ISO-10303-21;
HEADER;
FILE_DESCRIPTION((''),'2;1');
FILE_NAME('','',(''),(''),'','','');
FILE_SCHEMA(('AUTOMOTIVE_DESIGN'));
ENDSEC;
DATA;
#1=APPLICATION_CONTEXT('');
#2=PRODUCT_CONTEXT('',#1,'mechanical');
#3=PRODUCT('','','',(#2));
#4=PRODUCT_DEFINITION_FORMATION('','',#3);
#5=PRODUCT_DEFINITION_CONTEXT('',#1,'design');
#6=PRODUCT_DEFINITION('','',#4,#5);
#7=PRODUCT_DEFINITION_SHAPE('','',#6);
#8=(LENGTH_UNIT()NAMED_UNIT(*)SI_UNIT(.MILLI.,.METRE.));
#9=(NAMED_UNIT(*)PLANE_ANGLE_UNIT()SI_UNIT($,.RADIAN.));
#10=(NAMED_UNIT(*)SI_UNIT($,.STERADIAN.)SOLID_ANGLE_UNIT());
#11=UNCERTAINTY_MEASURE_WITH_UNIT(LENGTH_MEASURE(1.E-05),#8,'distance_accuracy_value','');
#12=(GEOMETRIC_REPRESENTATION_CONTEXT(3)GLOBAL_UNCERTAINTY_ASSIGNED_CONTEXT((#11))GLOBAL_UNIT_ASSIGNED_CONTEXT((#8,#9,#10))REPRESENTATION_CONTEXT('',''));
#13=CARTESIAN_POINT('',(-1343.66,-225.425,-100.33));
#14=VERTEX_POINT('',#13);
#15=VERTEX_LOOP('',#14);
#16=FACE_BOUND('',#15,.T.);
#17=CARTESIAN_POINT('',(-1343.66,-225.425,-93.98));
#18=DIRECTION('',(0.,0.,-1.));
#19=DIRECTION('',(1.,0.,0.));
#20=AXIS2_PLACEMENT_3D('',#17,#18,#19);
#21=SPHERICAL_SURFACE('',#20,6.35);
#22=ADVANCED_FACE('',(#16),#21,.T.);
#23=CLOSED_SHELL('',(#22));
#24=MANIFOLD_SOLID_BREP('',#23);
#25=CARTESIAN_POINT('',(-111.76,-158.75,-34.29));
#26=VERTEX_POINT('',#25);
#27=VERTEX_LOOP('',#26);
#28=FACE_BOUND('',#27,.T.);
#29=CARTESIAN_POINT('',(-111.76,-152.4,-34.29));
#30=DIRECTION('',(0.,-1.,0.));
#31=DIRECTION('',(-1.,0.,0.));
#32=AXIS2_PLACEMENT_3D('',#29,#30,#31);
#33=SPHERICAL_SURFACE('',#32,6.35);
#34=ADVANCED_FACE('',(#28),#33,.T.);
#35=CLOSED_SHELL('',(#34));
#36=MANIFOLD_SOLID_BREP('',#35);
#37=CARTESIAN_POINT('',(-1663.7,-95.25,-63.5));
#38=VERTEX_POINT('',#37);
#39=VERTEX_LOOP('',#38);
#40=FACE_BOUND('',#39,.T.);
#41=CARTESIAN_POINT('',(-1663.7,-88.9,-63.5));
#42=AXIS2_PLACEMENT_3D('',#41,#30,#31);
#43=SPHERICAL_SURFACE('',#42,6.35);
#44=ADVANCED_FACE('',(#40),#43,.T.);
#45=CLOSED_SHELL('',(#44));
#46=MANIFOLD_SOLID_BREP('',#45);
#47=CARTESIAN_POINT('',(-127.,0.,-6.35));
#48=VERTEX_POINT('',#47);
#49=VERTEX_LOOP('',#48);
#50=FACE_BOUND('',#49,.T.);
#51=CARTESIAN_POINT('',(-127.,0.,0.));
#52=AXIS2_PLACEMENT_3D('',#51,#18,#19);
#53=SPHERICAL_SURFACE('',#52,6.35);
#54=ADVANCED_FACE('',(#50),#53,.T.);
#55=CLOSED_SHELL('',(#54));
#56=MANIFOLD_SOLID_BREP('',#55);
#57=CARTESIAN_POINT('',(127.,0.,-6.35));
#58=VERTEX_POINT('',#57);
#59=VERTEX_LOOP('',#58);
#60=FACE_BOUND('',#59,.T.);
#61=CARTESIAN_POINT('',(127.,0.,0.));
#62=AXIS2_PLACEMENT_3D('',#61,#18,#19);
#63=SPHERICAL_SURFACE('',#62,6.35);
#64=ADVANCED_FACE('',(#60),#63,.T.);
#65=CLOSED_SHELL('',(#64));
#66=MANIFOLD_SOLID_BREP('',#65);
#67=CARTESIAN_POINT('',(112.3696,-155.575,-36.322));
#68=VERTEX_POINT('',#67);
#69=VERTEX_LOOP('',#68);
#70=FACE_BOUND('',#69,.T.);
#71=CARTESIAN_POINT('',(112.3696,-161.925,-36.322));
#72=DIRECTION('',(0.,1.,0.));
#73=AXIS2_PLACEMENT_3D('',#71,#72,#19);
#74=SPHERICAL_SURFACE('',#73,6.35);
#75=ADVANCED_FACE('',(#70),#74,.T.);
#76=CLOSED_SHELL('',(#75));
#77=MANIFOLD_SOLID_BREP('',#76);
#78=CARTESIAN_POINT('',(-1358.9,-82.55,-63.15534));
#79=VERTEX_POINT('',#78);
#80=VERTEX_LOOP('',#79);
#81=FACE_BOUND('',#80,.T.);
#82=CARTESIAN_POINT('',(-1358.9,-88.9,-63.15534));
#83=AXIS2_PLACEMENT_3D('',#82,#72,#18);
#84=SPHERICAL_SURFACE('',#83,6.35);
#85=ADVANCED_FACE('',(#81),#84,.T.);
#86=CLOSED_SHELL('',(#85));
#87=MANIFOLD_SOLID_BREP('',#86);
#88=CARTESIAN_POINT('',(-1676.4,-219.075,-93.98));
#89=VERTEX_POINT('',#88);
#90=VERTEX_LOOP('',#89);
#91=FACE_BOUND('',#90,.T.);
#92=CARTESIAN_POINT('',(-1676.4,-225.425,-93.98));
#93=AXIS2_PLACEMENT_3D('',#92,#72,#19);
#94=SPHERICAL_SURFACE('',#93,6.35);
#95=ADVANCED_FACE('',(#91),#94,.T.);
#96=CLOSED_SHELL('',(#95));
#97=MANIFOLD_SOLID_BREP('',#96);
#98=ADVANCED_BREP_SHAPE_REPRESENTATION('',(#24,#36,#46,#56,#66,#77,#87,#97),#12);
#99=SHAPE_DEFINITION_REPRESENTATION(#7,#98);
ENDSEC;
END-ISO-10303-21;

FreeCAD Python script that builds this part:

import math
import FreeCAD as App
import Part
import Sketcher
from FreeCAD import Vector
Q = App.Units.Quantity

doc = App.newDocument("Part")
body = doc.addObject("PartDesign::Body", "Body")

sketch1 = body.newObject("Sketcher::SketchObject", "Sketch")
sketch1.AttachmentSupport = (doc.getObject("XZ_Plane"), [""])
sketch1.MapMode = "FlatFace"
sketch1.addGeometry([
    Part.LineSegment(Vector(127, -6.35, 0), Vector(127, 6.35, 0)),
    Part.ArcOfCircle(Part.Circle(Vector(127, 0, 0), Vector(0, 0, 1), 6.35), math.radians(-90), math.radians(90)),
], False)
sketch1.addGeometry(Part.LineSegment(Vector(127, -6.35, 0), Vector(127, 6.35, 0)), True)
sketch1.addConstraint([
    Sketcher.Constraint("Coincident", 0, 1, 1, 1),
    Sketcher.Constraint("Coincident", 1, 2, 0, 2),
    Sketcher.Constraint("Vertical", 0),
    Sketcher.Constraint("Vertical", 2),
    Sketcher.Constraint("Coincident", 2, 1, 0, 1),
    Sketcher.Constraint("PointOnObject", 1, 3, -1),
    Sketcher.Constraint("Vertical", 1, 3, 0, 1),
    Sketcher.Constraint("Equal", 0, 2),
    Sketcher.Constraint("Radius", 1, Q("0.25 in")),
    Sketcher.Constraint("DistanceX", -1, 1, 1, 3, Q("5 in")),
])
revolution = body.newObject("PartDesign::Revolution", "Revolution")
revolution.Profile = sketch1
revolution.ReferenceAxis = (sketch1, ["Axis0"])
revolution.Angle = 360
body2 = doc.addObject("PartDesign::Body", "Body001")

sketch2 = body2.newObject("Sketcher::SketchObject", "Sketch001")
sketch2.AttachmentSupport = (doc.getObject("XZ_Plane001"), [""])
sketch2.MapMode = "FlatFace"
sketch2.addGeometry([
    Part.LineSegment(Vector(-127, 6.35, 0), Vector(-127, -6.35, 0)),
    Part.ArcOfCircle(Part.Circle(Vector(-127, 0, 0), Vector(0, 0, 1), 6.35), math.radians(90), math.radians(270)),
], False)
sketch2.addGeometry(Part.LineSegment(Vector(-127, -6.35, 0), Vector(-127, 6.35, 0)), True)
sketch2.addConstraint([
    Sketcher.Constraint("Coincident", 0, 1, 1, 1),
    Sketcher.Constraint("Coincident", 1, 2, 0, 2),
    Sketcher.Constraint("Vertical", 0),
    Sketcher.Constraint("Vertical", 2),
    Sketcher.Constraint("Coincident", 2, 1, 1, 2),
    Sketcher.Constraint("PointOnObject", 1, 3, -1),
    Sketcher.Constraint("Vertical", 1, 3, 0, 1),
    Sketcher.Constraint("Equal", 0, 2),
    Sketcher.Constraint("Radius", 1, Q("0.25 in")),
    Sketcher.Constraint("DistanceX", 1, 3, -1, 1, Q("5 in")),
])
revolution2 = body2.newObject("PartDesign::Revolution", "Revolution001")
revolution2.Profile = sketch2
revolution2.ReferenceAxis = (sketch2, ["Axis0"])
revolution2.Angle = 360
body3 = doc.addObject("PartDesign::Body", "Body002")

sketch3 = body3.newObject("Sketcher::SketchObject", "Sketch002")
sketch3.AttachmentSupport = (doc.getObject("XY_Plane002"), [""])
sketch3.MapMode = "FlatFace"
sketch3.AttachmentOffset = App.Placement(Vector(0, 0, -1.35 * 25.4), App.Rotation())
sketch3.addGeometry([
    Part.LineSegment(Vector(-111.76, -146.05, 0), Vector(-111.76, -158.75, 0)),
    Part.ArcOfCircle(Part.Circle(Vector(-111.76, -152.4, 0), Vector(0, 0, 1), 6.35), math.radians(-90), math.radians(90)),
], False)
sketch3.addGeometry(Part.LineSegment(Vector(-111.76, -158.75, 0), Vector(-111.76, -146.05, 0)), True)
sketch3.addConstraint([
    Sketcher.Constraint("Coincident", 0, 1, 1, 2),
    Sketcher.Constraint("Coincident", 1, 1, 0, 2),
    Sketcher.Constraint("Vertical", 0),
    Sketcher.Constraint("Vertical", 2),
    Sketcher.Constraint("Coincident", 2, 1, 1, 1),
    Sketcher.Constraint("Vertical", 1, 3, 0, 1),
    Sketcher.Constraint("Equal", 0, 2),
    Sketcher.Constraint("Radius", 1, Q("0.25 in")),
    Sketcher.Constraint("DistanceY", 1, 3, -1, 1, Q("6 in")),
    Sketcher.Constraint("DistanceX", 1, 3, -1, 1, Q("4.4 in")),
])
revolution3 = body3.newObject("PartDesign::Revolution", "Revolution002")
revolution3.Profile = sketch3
revolution3.ReferenceAxis = (sketch3, ["Axis0"])
revolution3.Angle = 360
body4 = doc.addObject("PartDesign::Body", "Body003")

sketch4 = body4.newObject("Sketcher::SketchObject", "Sketch003")
sketch4.AttachmentSupport = (doc.getObject("XY_Plane003"), [""])
sketch4.MapMode = "FlatFace"
sketch4.AttachmentOffset = App.Placement(Vector(0, 0, -1.43 * 25.4), App.Rotation())
sketch4.addGeometry([
    Part.LineSegment(Vector(112.3696, -168.275, 0), Vector(112.3696, -155.575, 0)),
    Part.ArcOfCircle(Part.Circle(Vector(112.3696, -161.925, 0), Vector(0, 0, 1), 6.35), math.radians(90), math.radians(270)),
], False)
sketch4.addGeometry(Part.LineSegment(Vector(112.3696, -155.575, 0), Vector(112.3696, -168.275, 0)), True)
sketch4.addConstraint([
    Sketcher.Constraint("Coincident", 0, 1, 1, 2),
    Sketcher.Constraint("Coincident", 1, 1, 0, 2),
    Sketcher.Constraint("Vertical", 0),
    Sketcher.Constraint("Vertical", 2),
    Sketcher.Constraint("Coincident", 2, 1, 1, 1),
    Sketcher.Constraint("Vertical", 1, 3, 0, 1),
    Sketcher.Constraint("Equal", 0, 2),
    Sketcher.Constraint("Radius", 1, Q("0.25 in")),
    Sketcher.Constraint("DistanceX", -1, 1, 1, 3, Q("4.424 in")),
    Sketcher.Constraint("DistanceY", 1, 3, -1, 1, Q("6.375 in")),
])
revolution4 = body4.newObject("PartDesign::Revolution", "Revolution003")
revolution4.Profile = sketch4
revolution4.ReferenceAxis = (sketch4, ["Axis0"])
revolution4.Angle = 360
body5 = doc.addObject("PartDesign::Body", "Body004")

sketch5 = body5.newObject("Sketcher::SketchObject", "Sketch004")
sketch5.AttachmentSupport = (doc.getObject("XZ_Plane004"), [""])
sketch5.MapMode = "FlatFace"
sketch5.AttachmentOffset = App.Placement(Vector(0, 0, 8.875 * 25.4), App.Rotation())
sketch5.addGeometry([
    Part.LineSegment(Vector(-1343.66, -100.33, 0), Vector(-1343.66, -87.63, 0)),
    Part.ArcOfCircle(Part.Circle(Vector(-1343.66, -93.98, 0), Vector(0, 0, 1), 6.35), math.radians(-90), math.radians(90)),
], False)
sketch5.addGeometry(Part.LineSegment(Vector(-1343.66, -100.33, 0), Vector(-1343.66, -87.63, 0)), True)
sketch5.addConstraint([
    Sketcher.Constraint("Coincident", 0, 1, 1, 1),
    Sketcher.Constraint("Coincident", 1, 2, 0, 2),
    Sketcher.Constraint("Vertical", 0),
    Sketcher.Constraint("Vertical", 2),
    Sketcher.Constraint("Coincident", 2, 1, 0, 1),
    Sketcher.Constraint("Vertical", 1, 3, 0, 1),
    Sketcher.Constraint("Equal", 0, 2),
    Sketcher.Constraint("Radius", 1, Q("0.25 in")),
    Sketcher.Constraint("DistanceX", 1, 3, -1, 1, Q("52.9 in")),
    Sketcher.Constraint("DistanceY", 1, 3, -1, 1, Q("3.7 in")),
])
revolution5 = body5.newObject("PartDesign::Revolution", "Revolution004")
revolution5.Profile = sketch5
revolution5.ReferenceAxis = (sketch5, ["Axis0"])
revolution5.Angle = 360
body6 = doc.addObject("PartDesign::Body", "Body005")

sketch6 = body6.newObject("Sketcher::SketchObject", "Sketch005")
sketch6.AttachmentSupport = (doc.getObject("XY_Plane005"), [""])
sketch6.MapMode = "FlatFace"
sketch6.AttachmentOffset = App.Placement(Vector(0, 0, -3.7 * 25.4), App.Rotation())
sketch6.addGeometry([
    Part.LineSegment(Vector(-1676.4, -231.775, 0), Vector(-1676.4, -219.075, 0)),
    Part.ArcOfCircle(Part.Circle(Vector(-1676.4, -225.425, 0), Vector(0, 0, 1), 6.35), math.radians(90), math.radians(270)),
], False)
sketch6.addGeometry(Part.LineSegment(Vector(-1676.4, -219.075, 0), Vector(-1676.4, -231.775, 0)), True)
sketch6.addConstraint([
    Sketcher.Constraint("Coincident", 0, 1, 1, 2),
    Sketcher.Constraint("Coincident", 1, 1, 0, 2),
    Sketcher.Constraint("Vertical", 0),
    Sketcher.Constraint("Vertical", 2),
    Sketcher.Constraint("Coincident", 2, 1, 1, 1),
    Sketcher.Constraint("Vertical", 1, 3, 0, 1),
    Sketcher.Constraint("Equal", 0, 2),
    Sketcher.Constraint("Radius", 1, Q("0.25 in")),
    Sketcher.Constraint("DistanceX", 1, 3, -1, 1, Q("66 in")),
    Sketcher.Constraint("DistanceY", 1, 3, -1, 1, Q("8.875 in")),
])
revolution6 = body6.newObject("PartDesign::Revolution", "Revolution005")
revolution6.Profile = sketch6
revolution6.ReferenceAxis = (sketch6, ["Axis0"])
revolution6.Angle = 360
body7 = doc.addObject("PartDesign::Body", "Body006")

sketch7 = body7.newObject("Sketcher::SketchObject", "Sketch006")
sketch7.AttachmentSupport = (doc.getObject("YZ_Plane006"), [""])
sketch7.MapMode = "FlatFace"
sketch7.AttachmentOffset = App.Placement(Vector(0, 0, -53.5 * 25.4), App.Rotation())
sketch7.addGeometry([
    Part.LineSegment(Vector(-82.55, -63.15534, 0), Vector(-95.25, -63.15534, 0)),
    Part.ArcOfCircle(Part.Circle(Vector(-88.9, -63.15534, 0), Vector(0, 0, 1), 6.35), math.radians(180), math.radians(360)),
], False)
sketch7.addGeometry(Part.LineSegment(Vector(-82.55, -63.15534, 0), Vector(-95.25, -63.15534, 0)), True)
sketch7.addConstraint([
    Sketcher.Constraint("Coincident", 0, 1, 1, 2),
    Sketcher.Constraint("Coincident", 1, 1, 0, 2),
    Sketcher.Constraint("Horizontal", 0),
    Sketcher.Constraint("Horizontal", 2),
    Sketcher.Constraint("Coincident", 2, 1, 0, 1),
    Sketcher.Constraint("Horizontal", 1, 3, 0, 1),
    Sketcher.Constraint("Equal", 0, 2),
    Sketcher.Constraint("Radius", 1, Q("0.25 in")),
    Sketcher.Constraint("DistanceX", 1, 3, -1, 1, Q("3.5 in")),
    Sketcher.Constraint("DistanceY", 1, 3, -1, 1, 63.15534),
])
revolution7 = body7.newObject("PartDesign::Revolution", "Revolution006")
revolution7.Profile = sketch7
revolution7.ReferenceAxis = (sketch7, ["Axis0"])
revolution7.Angle = 360
body8 = doc.addObject("PartDesign::Body", "Body007")

sketch8 = body8.newObject("Sketcher::SketchObject", "Sketch007")
sketch8.AttachmentSupport = (doc.getObject("XY_Plane007"), [""])
sketch8.MapMode = "FlatFace"
sketch8.AttachmentOffset = App.Placement(Vector(0, 0, -2.5 * 25.4), App.Rotation())
sketch8.addGeometry([
    Part.LineSegment(Vector(-1663.7, -95.25, 0), Vector(-1663.7, -82.55, 0)),
    Part.ArcOfCircle(Part.Circle(Vector(-1663.7, -88.9, 0), Vector(0, 0, 1), 6.35), math.radians(90), math.radians(270)),
], False)
sketch8.addGeometry(Part.LineSegment(Vector(-1663.7, -95.25, 0), Vector(-1663.7, -82.55, 0)), True)
sketch8.addConstraint([
    Sketcher.Constraint("Coincident", 0, 1, 1, 2),
    Sketcher.Constraint("Coincident", 1, 1, 0, 2),
    Sketcher.Constraint("Vertical", 0),
    Sketcher.Constraint("Vertical", 2),
    Sketcher.Constraint("Coincident", 2, 1, 0, 1),
    Sketcher.Constraint("Vertical", 1, 3, 0, 1),
    Sketcher.Constraint("Equal", 0, 2),
    Sketcher.Constraint("Radius", 1, Q("0.25 in")),
    Sketcher.Constraint("DistanceX", 1, 3, -1, 1, Q("65.5 in")),
    Sketcher.Constraint("DistanceY", 1, 3, -1, 1, Q("3.5 in")),
])
revolution8 = body8.newObject("PartDesign::Revolution", "Revolution007")
revolution8.Profile = sketch8
revolution8.ReferenceAxis = (sketch8, ["Axis0"])
revolution8.Angle = 360

doc.recompute()
